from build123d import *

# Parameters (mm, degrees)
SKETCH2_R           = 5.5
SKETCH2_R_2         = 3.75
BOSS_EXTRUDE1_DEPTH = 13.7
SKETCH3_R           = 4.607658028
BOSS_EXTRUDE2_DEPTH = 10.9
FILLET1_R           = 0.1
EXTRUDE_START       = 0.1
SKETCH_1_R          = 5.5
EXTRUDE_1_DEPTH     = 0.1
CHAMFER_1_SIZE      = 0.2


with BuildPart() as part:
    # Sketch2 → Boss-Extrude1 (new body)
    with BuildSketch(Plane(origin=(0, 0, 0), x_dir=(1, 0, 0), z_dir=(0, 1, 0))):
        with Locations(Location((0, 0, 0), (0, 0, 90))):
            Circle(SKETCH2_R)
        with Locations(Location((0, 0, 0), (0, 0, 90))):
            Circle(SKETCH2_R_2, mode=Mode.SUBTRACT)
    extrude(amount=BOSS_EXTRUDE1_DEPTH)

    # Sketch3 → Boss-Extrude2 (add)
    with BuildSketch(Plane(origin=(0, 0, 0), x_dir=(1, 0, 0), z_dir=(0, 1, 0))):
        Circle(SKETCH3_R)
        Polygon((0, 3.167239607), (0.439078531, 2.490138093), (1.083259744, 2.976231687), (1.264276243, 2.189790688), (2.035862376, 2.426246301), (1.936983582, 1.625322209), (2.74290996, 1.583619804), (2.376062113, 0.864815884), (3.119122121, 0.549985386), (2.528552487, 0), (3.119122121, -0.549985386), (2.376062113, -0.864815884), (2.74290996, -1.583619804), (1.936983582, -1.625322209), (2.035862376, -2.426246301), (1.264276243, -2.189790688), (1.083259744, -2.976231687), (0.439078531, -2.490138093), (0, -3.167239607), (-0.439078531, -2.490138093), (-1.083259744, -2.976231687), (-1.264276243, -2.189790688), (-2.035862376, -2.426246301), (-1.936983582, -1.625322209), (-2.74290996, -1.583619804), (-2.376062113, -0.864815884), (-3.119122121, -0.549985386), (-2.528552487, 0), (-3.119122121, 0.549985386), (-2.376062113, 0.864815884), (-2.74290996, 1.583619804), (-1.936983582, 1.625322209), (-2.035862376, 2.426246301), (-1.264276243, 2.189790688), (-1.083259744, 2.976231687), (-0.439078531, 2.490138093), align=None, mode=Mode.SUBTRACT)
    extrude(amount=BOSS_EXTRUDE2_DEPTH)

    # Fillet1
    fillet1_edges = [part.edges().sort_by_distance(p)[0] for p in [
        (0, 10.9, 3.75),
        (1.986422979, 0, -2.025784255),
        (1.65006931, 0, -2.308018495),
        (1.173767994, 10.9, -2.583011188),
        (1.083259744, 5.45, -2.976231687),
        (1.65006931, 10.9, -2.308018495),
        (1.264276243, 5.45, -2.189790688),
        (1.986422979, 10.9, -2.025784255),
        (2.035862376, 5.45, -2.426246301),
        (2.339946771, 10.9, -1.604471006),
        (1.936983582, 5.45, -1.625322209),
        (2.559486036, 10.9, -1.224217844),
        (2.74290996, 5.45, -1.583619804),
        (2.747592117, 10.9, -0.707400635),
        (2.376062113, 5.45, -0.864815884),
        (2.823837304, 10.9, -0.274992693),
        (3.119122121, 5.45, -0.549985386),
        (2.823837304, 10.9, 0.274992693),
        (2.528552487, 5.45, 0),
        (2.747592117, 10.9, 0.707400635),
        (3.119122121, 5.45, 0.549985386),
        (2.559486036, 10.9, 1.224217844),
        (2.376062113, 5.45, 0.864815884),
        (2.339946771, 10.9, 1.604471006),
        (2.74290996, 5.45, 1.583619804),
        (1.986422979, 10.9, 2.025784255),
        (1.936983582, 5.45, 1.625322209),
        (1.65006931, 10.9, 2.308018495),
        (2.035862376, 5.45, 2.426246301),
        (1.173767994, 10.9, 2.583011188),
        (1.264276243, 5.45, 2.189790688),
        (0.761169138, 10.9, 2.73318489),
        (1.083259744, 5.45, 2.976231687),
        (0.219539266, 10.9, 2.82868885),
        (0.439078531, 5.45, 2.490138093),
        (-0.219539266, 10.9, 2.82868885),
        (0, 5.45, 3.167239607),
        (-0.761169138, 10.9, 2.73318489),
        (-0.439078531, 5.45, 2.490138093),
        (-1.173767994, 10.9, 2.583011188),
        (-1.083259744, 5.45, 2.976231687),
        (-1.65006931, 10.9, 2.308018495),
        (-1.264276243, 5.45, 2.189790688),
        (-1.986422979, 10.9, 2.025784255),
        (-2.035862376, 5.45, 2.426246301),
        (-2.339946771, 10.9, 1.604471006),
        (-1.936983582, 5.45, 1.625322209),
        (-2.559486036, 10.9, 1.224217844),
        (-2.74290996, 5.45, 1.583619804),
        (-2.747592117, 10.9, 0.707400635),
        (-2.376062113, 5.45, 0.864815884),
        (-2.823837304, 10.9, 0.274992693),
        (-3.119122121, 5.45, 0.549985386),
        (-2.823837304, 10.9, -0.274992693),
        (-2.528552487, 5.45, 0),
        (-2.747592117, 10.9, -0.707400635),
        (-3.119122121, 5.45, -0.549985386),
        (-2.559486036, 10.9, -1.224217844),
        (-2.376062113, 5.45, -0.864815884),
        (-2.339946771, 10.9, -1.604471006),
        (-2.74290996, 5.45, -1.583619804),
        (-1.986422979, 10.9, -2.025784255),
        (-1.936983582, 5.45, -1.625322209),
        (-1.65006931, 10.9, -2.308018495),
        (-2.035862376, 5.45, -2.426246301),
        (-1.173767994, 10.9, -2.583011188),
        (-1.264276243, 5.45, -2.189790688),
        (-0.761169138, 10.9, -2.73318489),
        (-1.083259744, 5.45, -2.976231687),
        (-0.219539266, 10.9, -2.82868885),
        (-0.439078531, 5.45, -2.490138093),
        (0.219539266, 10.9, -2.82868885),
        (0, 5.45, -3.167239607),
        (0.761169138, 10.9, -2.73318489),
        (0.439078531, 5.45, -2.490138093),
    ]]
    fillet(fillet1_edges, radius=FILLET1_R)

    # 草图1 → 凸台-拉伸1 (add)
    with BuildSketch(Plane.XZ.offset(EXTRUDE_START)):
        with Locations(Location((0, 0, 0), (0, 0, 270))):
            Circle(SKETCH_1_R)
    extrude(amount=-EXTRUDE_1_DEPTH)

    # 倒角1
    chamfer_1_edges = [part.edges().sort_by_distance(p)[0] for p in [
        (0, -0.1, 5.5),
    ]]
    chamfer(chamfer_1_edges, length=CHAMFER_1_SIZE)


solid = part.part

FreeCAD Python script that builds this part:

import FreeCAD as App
import Part
import Sketcher
from FreeCAD import Vector


def edges_at(feature, points):
    """Names of the edges that pass closest to the given points."""
    edges = feature.Shape.Edges
    near = lambda p: min(range(len(edges)), key=lambda i: edges[i].distToShape(Part.Vertex(*p))[0])
    return sorted({f"Edge{near(p) + 1}" for p in points})

doc = App.newDocument("Part")
body = doc.addObject("PartDesign::Body", "Body")

# Sketch on XZ plane
sketch1 = body.newObject("Sketcher::SketchObject", "Sketch")
sketch1.AttachmentSupport = (doc.getObject("XZ_Plane"), [""])
sketch1.MapMode = "FlatFace"
sketch1.addGeometry([
    Part.Circle(Vector(0, 0, 0), Vector(0, 0, 1), 5.5),
    Part.Circle(Vector(0, 0, 0), Vector(0, 0, 1), 3.8),
], False)
sketch1.addConstraint([
    Sketcher.Constraint("Coincident", 0, 3, -1, 1),
    Sketcher.Constraint("Coincident", 1, 3, -1, 1),
    Sketcher.Constraint("Diameter", 0, 11.0),
    Sketcher.Constraint("Diameter", 1, 7.5),
])
pad1 = body.newObject("PartDesign::Pad", "Pad")
pad1.Profile = sketch1
pad1.Length = 13.7
pad1.Reversed = True

# Sketch on XZ plane
sketch2 = body.newObject("Sketcher::SketchObject", "Sketch001")
sketch2.AttachmentSupport = (doc.getObject("XZ_Plane"), [""])
sketch2.MapMode = "FlatFace"
sketch2.addGeometry([
    Part.Circle(Vector(0, 0, 0), Vector(0, 0, 1), 4.6),  # 0
    Part.LineSegment(Vector(-0.4, -2.5, 0), Vector(0, -3.2, 0)),  # 1
    Part.LineSegment(Vector(0, -3.2, 0), Vector(0.4, -2.5, 0)),  # 2
    Part.LineSegment(Vector(0.4, -2.5, 0), Vector(1.1, -3, 0)),  # 3
    Part.LineSegment(Vector(1.1, -3, 0), Vector(1.3, -2.2, 0)),  # 4
    Part.LineSegment(Vector(1.3, -2.2, 0), Vector(2, -2.4, 0)),  # 5
    Part.LineSegment(Vector(2, -2.4, 0), Vector(1.9, -1.6, 0)),  # 6
    Part.LineSegment(Vector(1.9, -1.6, 0), Vector(2.7, -1.6, 0)),  # 7
    Part.LineSegment(Vector(2.7, -1.6, 0), Vector(2.4, -0.9, 0)),  # 8
    Part.LineSegment(Vector(2.4, -0.9, 0), Vector(3.1, -0.5, 0)),  # 9
    Part.LineSegment(Vector(3.1, -0.5, 0), Vector(2.5, 0, 0)),  # 10
    Part.LineSegment(Vector(2.5, 0, 0), Vector(3.1, 0.5, 0)),  # 11
    Part.LineSegment(Vector(3.1, 0.5, 0), Vector(2.4, 0.9, 0)),  # 12
    Part.LineSegment(Vector(2.4, 0.9, 0), Vector(2.7, 1.6, 0)),  # 13
    Part.LineSegment(Vector(2.7, 1.6, 0), Vector(1.9, 1.6, 0)),  # 14
    Part.LineSegment(Vector(1.9, 1.6, 0), Vector(2, 2.4, 0)),  # 15
    Part.LineSegment(Vector(2, 2.4, 0), Vector(1.3, 2.2, 0)),  # 16
    Part.LineSegment(Vector(1.3, 2.2, 0), Vector(1.1, 3, 0)),  # 17
    Part.LineSegment(Vector(1.1, 3, 0), Vector(0.4, 2.5, 0)),  # 18
    Part.LineSegment(Vector(0.4, 2.5, 0), Vector(0, 3.2, 0)),  # 19
    Part.LineSegment(Vector(0, 3.2, 0), Vector(-0.4, 2.5, 0)),  # 20
    Part.LineSegment(Vector(-0.4, 2.5, 0), Vector(-1.1, 3, 0)),  # 21
    Part.LineSegment(Vector(-1.1, 3, 0), Vector(-1.3, 2.2, 0)),  # 22
    Part.LineSegment(Vector(-1.3, 2.2, 0), Vector(-2, 2.4, 0)),  # 23
    Part.LineSegment(Vector(-2, 2.4, 0), Vector(-1.9, 1.6, 0)),  # 24
    Part.LineSegment(Vector(-1.9, 1.6, 0), Vector(-2.7, 1.6, 0)),  # 25
    Part.LineSegment(Vector(-2.7, 1.6, 0), Vector(-2.4, 0.9, 0)),  # 26
    Part.LineSegment(Vector(-2.4, 0.9, 0), Vector(-3.1, 0.5, 0)),  # 27
    Part.LineSegment(Vector(-3.1, 0.5, 0), Vector(-2.5, 0, 0)),  # 28
    Part.LineSegment(Vector(-2.5, 0, 0), Vector(-3.1, -0.5, 0)),  # 29
    Part.LineSegment(Vector(-3.1, -0.5, 0), Vector(-2.4, -0.9, 0)),  # 30
    Part.LineSegment(Vector(-2.4, -0.9, 0), Vector(-2.7, -1.6, 0)),  # 31
    Part.LineSegment(Vector(-2.7, -1.6, 0), Vector(-1.9, -1.6, 0)),  # 32
    Part.LineSegment(Vector(-1.9, -1.6, 0), Vector(-2, -2.4, 0)),  # 33
    Part.LineSegment(Vector(-2, -2.4, 0), Vector(-1.3, -2.2, 0)),  # 34
    Part.LineSegment(Vector(-1.3, -2.2, 0), Vector(-1.1, -3, 0)),  # 35
    Part.LineSegment(Vector(-1.1, -3, 0), Vector(-0.4, -2.5, 0)),  # 36
], False)
sketch2.addConstraint([
    Sketcher.Constraint("Coincident", 1, 2, 2, 1),
    Sketcher.Constraint("Coincident", 2, 2, 3, 1),
    Sketcher.Constraint("Coincident", 3, 2, 4, 1),
    Sketcher.Constraint("Coincident", 4, 2, 5, 1),
    Sketcher.Constraint("Coincident", 5, 2, 6, 1),
    Sketcher.Constraint("Coincident", 6, 2, 7, 1),
    Sketcher.Constraint("Coincident", 7, 2, 8, 1),
    Sketcher.Constraint("Coincident", 8, 2, 9, 1),
    Sketcher.Constraint("Coincident", 9, 2, 10, 1),
    Sketcher.Constraint("Coincident", 10, 2, 11, 1),
    Sketcher.Constraint("Coincident", 11, 2, 12, 1),
    Sketcher.Constraint("Coincident", 12, 2, 13, 1),
    Sketcher.Constraint("Coincident", 13, 2, 14, 1),
    Sketcher.Constraint("Coincident", 14, 2, 15, 1),
    Sketcher.Constraint("Coincident", 15, 2, 16, 1),
    Sketcher.Constraint("Coincident", 16, 2, 17, 1),
    Sketcher.Constraint("Coincident", 17, 2, 18, 1),
    Sketcher.Constraint("Coincident", 18, 2, 19, 1),
    Sketcher.Constraint("Coincident", 19, 2, 20, 1),
    Sketcher.Constraint("Coincident", 20, 2, 21, 1),
    Sketcher.Constraint("Coincident", 21, 2, 22, 1),
    Sketcher.Constraint("Coincident", 22, 2, 23, 1),
    Sketcher.Constraint("Coincident", 23, 2, 24, 1),
    Sketcher.Constraint("Coincident", 24, 2, 25, 1),
    Sketcher.Constraint("Coincident", 25, 2, 26, 1),
    Sketcher.Constraint("Coincident", 26, 2, 27, 1),
    Sketcher.Constraint("Coincident", 27, 2, 28, 1),
    Sketcher.Constraint("Coincident", 28, 2, 29, 1),
    Sketcher.Constraint("Coincident", 29, 2, 30, 1),
    Sketcher.Constraint("Coincident", 30, 2, 31, 1),
    Sketcher.Constraint("Coincident", 31, 2, 32, 1),
    Sketcher.Constraint("Coincident", 32, 2, 33, 1),
    Sketcher.Constraint("Coincident", 33, 2, 34, 1),
    Sketcher.Constraint("Coincident", 34, 2, 35, 1),
    Sketcher.Constraint("Coincident", 35, 2, 36, 1),
    Sketcher.Constraint("Coincident", 36, 2, 1, 1),
    Sketcher.Constraint("Coincident", 0, 3, -1, 1),
    Sketcher.Constraint("Symmetric", 1, 2, 19, 2, -1, 1),
    Sketcher.Constraint("Symmetric", 2, 2, 20, 2, -1, 1),
    Sketcher.Constraint("Symmetric", 3, 2, 21, 2, -1, 1),
    Sketcher.Constraint("Symmetric", 4, 2, 22, 2, -1, 1),
    Sketcher.Constraint("Symmetric", 5, 2, 23, 2, -1, 1),
    Sketcher.Constraint("Symmetric", 6, 2, 24, 2, -1, 1),
    Sketcher.Constraint("Symmetric", 7, 2, 25, 2, -1, 1),
    Sketcher.Constraint("Symmetric", 8, 2, 26, 2, -1, 1),
    Sketcher.Constraint("Symmetric", 9, 2, 27, 2, -1, 1),
    Sketcher.Constraint("Symmetric", 10, 2, 28, 2, -1, 1),
    Sketcher.Constraint("Symmetric", 11, 2, 29, 2, -1, 1),
    Sketcher.Constraint("Symmetric", 12, 2, 30, 2, -1, 1),
    Sketcher.Constraint("Symmetric", 13, 2, 31, 2, -1, 1),
    Sketcher.Constraint("Symmetric", 14, 2, 32, 2, -1, 1),
    Sketcher.Constraint("Symmetric", 15, 2, 33, 2, -1, 1),
    Sketcher.Constraint("Symmetric", 16, 2, 34, 2, -1, 1),
    Sketcher.Constraint("Symmetric", 17, 2, 35, 2, -1, 1),
    Sketcher.Constraint("Symmetric", 18, 2, 36, 2, -1, 1),
    Sketcher.Constraint("Symmetric", 18, 2, 20, 2, -2),
    Sketcher.Constraint("Symmetric", 17, 2, 21, 2, -2),
    Sketcher.Constraint("Symmetric", 16, 2, 22, 2, -2),
    Sketcher.Constraint("Symmetric", 15, 2, 23, 2, -2),
    Sketcher.Constraint("Symmetric", 14, 2, 24, 2, -2),
    Sketcher.Constraint("Symmetric", 13, 2, 25, 2, -2),
    Sketcher.Constraint("Symmetric", 12, 2, 26, 2, -2),
    Sketcher.Constraint("Symmetric", 11, 2, 27, 2, -2),
    Sketcher.Constraint("PointOnObject", 1, 2, -2),
    Sketcher.Constraint("PointOnObject", 10, 2, -1),
    Sketcher.Constraint("Equal", 2, 3),
    Sketcher.Constraint("Equal", 3, 4),
    Sketcher.Constraint("Equal", 4, 5),
    Sketcher.Constraint("Equal", 5, 6),
    Sketcher.Constraint("Equal", 6, 7),
    Sketcher.Constraint("Equal", 7, 8),
    Sketcher.Constraint("Equal", 8, 9),
    Sketcher.Constraint("Equal", 9, 10),
    Sketcher.Constraint("Diameter", 0, 9.215316),
    Sketcher.Constraint("DistanceY", 1, 2, 2, 2, 0.677102),
    Sketcher.Constraint("DistanceX", 5, 2, 8, 2, 0.3402),
    Sketcher.Constraint("DistanceY", 8, 2, 11, 2, 1.414801),
    Sketcher.Constraint("DistanceY", 1, 2, -1, 1, 3.16724),
    Sketcher.Constraint("DistanceX", -1, 1, 2, 2, 0.439079),
    Sketcher.Constraint("DistanceX", -1, 1, 3, 2, 1.08326),
    Sketcher.Constraint("DistanceY", 4, 2, -1, 1, 2.189791),
    Sketcher.Constraint("DistanceX", -1, 1, 7, 2, 2.74291),
    Sketcher.Constraint("DistanceY", 7, 2, -1, 1, 1.58362),
    Sketcher.Constraint("DistanceY", 2, 2, 5, 2, 0.063892),
])
pad2 = body.newObject("PartDesign::Pad", "Pad001")
pad2.Profile = sketch2
pad2.Length = 10.9
pad2.Reversed = True
doc.recompute()

fillet = body.newObject("PartDesign::Fillet", "Fillet")
fillet.Base = (pad2, edges_at(pad2, [
    (0, 10.9, 3.75),
    (1.986, 0, -2.026),
    (1.65, 0, -2.308),
    (1.174, 10.9, -2.583),
    (1.083, 5.45, -2.976),
    (1.65, 10.9, -2.308),
    (1.264, 5.45, -2.19),
    (1.986, 10.9, -2.026),
    (2.036, 5.45, -2.426),
    (2.34, 10.9, -1.604),
    (1.937, 5.45, -1.625),
    (2.559, 10.9, -1.224),
    (2.743, 5.45, -1.584),
    (2.748, 10.9, -0.707),
    (2.376, 5.45, -0.865),
    (2.824, 10.9, -0.275),
    (3.119, 5.45, -0.55),
    (2.824, 10.9, 0.275),
    (2.529, 5.45, 0),
    (2.748, 10.9, 0.707),
    (3.119, 5.45, 0.55),
    (2.559, 10.9, 1.224),
    (2.376, 5.45, 0.865),
    (2.34, 10.9, 1.604),
    (2.743, 5.45, 1.584),
    (1.986, 10.9, 2.026),
    (1.937, 5.45, 1.625),
    (1.65, 10.9, 2.308),
    (2.036, 5.45, 2.426),
    (1.174, 10.9, 2.583),
    (1.264, 5.45, 2.19),
    (0.761, 10.9, 2.733),
    (1.083, 5.45, 2.976),
    (0.22, 10.9, 2.829),
    (0.439, 5.45, 2.49),
    (-0.22, 10.9, 2.829),
    (0, 5.45, 3.167),
    (-0.761, 10.9, 2.733),
    (-0.439, 5.45, 2.49),
    (-1.174, 10.9, 2.583),
    (-1.083, 5.45, 2.976),
    (-1.65, 10.9, 2.308),
    (-1.264, 5.45, 2.19),
    (-1.986, 10.9, 2.026),
    (-2.036, 5.45, 2.426),
    (-2.34, 10.9, 1.604),
    (-1.937, 5.45, 1.625),
    (-2.559, 10.9, 1.224),
    (-2.743, 5.45, 1.584),
    (-2.748, 10.9, 0.707),
    (-2.376, 5.45, 0.865),
    (-2.824, 10.9, 0.275),
    (-3.119, 5.45, 0.55),
    (-2.824, 10.9, -0.275),
    (-2.529, 5.45, 0),
    (-2.748, 10.9, -0.707),
    (-3.119, 5.45, -0.55),
    (-2.559, 10.9, -1.224),
    (-2.376, 5.45, -0.865),
    (-2.34, 10.9, -1.604),
    (-2.743, 5.45, -1.584),
    (-1.986, 10.9, -2.026),
    (-1.937, 5.45, -1.625),
    (-1.65, 10.9, -2.308),
    (-2.036, 5.45, -2.426),
    (-1.174, 10.9, -2.583),
    (-1.264, 5.45, -2.19),
    (-0.761, 10.9, -2.733),
    (-1.083, 5.45, -2.976),
    (-0.22, 10.9, -2.829),
    (-0.439, 5.45, -2.49),
    (0.22, 10.9, -2.829),
    (0, 5.45, -3.167),
    (0.761, 10.9, -2.733),
    (0.439, 5.45, -2.49),
]))
fillet.Radius = 0.1

# Sketch on XZ plane
sketch3 = body.newObject("Sketcher::SketchObject", "Sketch002")
sketch3.AttachmentSupport = (doc.getObject("XZ_Plane"), [""])
sketch3.MapMode = "FlatFace"
sketch3.AttachmentOffset = App.Placement(Vector(0, 0, 0.1), App.Rotation())
sketch3.addGeometry(Part.Circle(Vector(0, 0, 0), Vector(0, 0, 1), 6), False)
sketch3.addConstraint([
    Sketcher.Constraint("Coincident", 0, 3, -1, 1),
    Sketcher.Constraint("Diameter", 0, 11.0),
])
pad3 = body.newObject("PartDesign::Pad", "Pad002")
pad3.Profile = sketch3
pad3.Length = 0.1
pad3.Reversed = True
doc.recompute()

chamfer = body.newObject("PartDesign::Chamfer", "Chamfer")
chamfer.Base = (pad3, edges_at(pad3, [(0, -0.1, 5.5)]))
chamfer.Size = 0.2

doc.recompute()
